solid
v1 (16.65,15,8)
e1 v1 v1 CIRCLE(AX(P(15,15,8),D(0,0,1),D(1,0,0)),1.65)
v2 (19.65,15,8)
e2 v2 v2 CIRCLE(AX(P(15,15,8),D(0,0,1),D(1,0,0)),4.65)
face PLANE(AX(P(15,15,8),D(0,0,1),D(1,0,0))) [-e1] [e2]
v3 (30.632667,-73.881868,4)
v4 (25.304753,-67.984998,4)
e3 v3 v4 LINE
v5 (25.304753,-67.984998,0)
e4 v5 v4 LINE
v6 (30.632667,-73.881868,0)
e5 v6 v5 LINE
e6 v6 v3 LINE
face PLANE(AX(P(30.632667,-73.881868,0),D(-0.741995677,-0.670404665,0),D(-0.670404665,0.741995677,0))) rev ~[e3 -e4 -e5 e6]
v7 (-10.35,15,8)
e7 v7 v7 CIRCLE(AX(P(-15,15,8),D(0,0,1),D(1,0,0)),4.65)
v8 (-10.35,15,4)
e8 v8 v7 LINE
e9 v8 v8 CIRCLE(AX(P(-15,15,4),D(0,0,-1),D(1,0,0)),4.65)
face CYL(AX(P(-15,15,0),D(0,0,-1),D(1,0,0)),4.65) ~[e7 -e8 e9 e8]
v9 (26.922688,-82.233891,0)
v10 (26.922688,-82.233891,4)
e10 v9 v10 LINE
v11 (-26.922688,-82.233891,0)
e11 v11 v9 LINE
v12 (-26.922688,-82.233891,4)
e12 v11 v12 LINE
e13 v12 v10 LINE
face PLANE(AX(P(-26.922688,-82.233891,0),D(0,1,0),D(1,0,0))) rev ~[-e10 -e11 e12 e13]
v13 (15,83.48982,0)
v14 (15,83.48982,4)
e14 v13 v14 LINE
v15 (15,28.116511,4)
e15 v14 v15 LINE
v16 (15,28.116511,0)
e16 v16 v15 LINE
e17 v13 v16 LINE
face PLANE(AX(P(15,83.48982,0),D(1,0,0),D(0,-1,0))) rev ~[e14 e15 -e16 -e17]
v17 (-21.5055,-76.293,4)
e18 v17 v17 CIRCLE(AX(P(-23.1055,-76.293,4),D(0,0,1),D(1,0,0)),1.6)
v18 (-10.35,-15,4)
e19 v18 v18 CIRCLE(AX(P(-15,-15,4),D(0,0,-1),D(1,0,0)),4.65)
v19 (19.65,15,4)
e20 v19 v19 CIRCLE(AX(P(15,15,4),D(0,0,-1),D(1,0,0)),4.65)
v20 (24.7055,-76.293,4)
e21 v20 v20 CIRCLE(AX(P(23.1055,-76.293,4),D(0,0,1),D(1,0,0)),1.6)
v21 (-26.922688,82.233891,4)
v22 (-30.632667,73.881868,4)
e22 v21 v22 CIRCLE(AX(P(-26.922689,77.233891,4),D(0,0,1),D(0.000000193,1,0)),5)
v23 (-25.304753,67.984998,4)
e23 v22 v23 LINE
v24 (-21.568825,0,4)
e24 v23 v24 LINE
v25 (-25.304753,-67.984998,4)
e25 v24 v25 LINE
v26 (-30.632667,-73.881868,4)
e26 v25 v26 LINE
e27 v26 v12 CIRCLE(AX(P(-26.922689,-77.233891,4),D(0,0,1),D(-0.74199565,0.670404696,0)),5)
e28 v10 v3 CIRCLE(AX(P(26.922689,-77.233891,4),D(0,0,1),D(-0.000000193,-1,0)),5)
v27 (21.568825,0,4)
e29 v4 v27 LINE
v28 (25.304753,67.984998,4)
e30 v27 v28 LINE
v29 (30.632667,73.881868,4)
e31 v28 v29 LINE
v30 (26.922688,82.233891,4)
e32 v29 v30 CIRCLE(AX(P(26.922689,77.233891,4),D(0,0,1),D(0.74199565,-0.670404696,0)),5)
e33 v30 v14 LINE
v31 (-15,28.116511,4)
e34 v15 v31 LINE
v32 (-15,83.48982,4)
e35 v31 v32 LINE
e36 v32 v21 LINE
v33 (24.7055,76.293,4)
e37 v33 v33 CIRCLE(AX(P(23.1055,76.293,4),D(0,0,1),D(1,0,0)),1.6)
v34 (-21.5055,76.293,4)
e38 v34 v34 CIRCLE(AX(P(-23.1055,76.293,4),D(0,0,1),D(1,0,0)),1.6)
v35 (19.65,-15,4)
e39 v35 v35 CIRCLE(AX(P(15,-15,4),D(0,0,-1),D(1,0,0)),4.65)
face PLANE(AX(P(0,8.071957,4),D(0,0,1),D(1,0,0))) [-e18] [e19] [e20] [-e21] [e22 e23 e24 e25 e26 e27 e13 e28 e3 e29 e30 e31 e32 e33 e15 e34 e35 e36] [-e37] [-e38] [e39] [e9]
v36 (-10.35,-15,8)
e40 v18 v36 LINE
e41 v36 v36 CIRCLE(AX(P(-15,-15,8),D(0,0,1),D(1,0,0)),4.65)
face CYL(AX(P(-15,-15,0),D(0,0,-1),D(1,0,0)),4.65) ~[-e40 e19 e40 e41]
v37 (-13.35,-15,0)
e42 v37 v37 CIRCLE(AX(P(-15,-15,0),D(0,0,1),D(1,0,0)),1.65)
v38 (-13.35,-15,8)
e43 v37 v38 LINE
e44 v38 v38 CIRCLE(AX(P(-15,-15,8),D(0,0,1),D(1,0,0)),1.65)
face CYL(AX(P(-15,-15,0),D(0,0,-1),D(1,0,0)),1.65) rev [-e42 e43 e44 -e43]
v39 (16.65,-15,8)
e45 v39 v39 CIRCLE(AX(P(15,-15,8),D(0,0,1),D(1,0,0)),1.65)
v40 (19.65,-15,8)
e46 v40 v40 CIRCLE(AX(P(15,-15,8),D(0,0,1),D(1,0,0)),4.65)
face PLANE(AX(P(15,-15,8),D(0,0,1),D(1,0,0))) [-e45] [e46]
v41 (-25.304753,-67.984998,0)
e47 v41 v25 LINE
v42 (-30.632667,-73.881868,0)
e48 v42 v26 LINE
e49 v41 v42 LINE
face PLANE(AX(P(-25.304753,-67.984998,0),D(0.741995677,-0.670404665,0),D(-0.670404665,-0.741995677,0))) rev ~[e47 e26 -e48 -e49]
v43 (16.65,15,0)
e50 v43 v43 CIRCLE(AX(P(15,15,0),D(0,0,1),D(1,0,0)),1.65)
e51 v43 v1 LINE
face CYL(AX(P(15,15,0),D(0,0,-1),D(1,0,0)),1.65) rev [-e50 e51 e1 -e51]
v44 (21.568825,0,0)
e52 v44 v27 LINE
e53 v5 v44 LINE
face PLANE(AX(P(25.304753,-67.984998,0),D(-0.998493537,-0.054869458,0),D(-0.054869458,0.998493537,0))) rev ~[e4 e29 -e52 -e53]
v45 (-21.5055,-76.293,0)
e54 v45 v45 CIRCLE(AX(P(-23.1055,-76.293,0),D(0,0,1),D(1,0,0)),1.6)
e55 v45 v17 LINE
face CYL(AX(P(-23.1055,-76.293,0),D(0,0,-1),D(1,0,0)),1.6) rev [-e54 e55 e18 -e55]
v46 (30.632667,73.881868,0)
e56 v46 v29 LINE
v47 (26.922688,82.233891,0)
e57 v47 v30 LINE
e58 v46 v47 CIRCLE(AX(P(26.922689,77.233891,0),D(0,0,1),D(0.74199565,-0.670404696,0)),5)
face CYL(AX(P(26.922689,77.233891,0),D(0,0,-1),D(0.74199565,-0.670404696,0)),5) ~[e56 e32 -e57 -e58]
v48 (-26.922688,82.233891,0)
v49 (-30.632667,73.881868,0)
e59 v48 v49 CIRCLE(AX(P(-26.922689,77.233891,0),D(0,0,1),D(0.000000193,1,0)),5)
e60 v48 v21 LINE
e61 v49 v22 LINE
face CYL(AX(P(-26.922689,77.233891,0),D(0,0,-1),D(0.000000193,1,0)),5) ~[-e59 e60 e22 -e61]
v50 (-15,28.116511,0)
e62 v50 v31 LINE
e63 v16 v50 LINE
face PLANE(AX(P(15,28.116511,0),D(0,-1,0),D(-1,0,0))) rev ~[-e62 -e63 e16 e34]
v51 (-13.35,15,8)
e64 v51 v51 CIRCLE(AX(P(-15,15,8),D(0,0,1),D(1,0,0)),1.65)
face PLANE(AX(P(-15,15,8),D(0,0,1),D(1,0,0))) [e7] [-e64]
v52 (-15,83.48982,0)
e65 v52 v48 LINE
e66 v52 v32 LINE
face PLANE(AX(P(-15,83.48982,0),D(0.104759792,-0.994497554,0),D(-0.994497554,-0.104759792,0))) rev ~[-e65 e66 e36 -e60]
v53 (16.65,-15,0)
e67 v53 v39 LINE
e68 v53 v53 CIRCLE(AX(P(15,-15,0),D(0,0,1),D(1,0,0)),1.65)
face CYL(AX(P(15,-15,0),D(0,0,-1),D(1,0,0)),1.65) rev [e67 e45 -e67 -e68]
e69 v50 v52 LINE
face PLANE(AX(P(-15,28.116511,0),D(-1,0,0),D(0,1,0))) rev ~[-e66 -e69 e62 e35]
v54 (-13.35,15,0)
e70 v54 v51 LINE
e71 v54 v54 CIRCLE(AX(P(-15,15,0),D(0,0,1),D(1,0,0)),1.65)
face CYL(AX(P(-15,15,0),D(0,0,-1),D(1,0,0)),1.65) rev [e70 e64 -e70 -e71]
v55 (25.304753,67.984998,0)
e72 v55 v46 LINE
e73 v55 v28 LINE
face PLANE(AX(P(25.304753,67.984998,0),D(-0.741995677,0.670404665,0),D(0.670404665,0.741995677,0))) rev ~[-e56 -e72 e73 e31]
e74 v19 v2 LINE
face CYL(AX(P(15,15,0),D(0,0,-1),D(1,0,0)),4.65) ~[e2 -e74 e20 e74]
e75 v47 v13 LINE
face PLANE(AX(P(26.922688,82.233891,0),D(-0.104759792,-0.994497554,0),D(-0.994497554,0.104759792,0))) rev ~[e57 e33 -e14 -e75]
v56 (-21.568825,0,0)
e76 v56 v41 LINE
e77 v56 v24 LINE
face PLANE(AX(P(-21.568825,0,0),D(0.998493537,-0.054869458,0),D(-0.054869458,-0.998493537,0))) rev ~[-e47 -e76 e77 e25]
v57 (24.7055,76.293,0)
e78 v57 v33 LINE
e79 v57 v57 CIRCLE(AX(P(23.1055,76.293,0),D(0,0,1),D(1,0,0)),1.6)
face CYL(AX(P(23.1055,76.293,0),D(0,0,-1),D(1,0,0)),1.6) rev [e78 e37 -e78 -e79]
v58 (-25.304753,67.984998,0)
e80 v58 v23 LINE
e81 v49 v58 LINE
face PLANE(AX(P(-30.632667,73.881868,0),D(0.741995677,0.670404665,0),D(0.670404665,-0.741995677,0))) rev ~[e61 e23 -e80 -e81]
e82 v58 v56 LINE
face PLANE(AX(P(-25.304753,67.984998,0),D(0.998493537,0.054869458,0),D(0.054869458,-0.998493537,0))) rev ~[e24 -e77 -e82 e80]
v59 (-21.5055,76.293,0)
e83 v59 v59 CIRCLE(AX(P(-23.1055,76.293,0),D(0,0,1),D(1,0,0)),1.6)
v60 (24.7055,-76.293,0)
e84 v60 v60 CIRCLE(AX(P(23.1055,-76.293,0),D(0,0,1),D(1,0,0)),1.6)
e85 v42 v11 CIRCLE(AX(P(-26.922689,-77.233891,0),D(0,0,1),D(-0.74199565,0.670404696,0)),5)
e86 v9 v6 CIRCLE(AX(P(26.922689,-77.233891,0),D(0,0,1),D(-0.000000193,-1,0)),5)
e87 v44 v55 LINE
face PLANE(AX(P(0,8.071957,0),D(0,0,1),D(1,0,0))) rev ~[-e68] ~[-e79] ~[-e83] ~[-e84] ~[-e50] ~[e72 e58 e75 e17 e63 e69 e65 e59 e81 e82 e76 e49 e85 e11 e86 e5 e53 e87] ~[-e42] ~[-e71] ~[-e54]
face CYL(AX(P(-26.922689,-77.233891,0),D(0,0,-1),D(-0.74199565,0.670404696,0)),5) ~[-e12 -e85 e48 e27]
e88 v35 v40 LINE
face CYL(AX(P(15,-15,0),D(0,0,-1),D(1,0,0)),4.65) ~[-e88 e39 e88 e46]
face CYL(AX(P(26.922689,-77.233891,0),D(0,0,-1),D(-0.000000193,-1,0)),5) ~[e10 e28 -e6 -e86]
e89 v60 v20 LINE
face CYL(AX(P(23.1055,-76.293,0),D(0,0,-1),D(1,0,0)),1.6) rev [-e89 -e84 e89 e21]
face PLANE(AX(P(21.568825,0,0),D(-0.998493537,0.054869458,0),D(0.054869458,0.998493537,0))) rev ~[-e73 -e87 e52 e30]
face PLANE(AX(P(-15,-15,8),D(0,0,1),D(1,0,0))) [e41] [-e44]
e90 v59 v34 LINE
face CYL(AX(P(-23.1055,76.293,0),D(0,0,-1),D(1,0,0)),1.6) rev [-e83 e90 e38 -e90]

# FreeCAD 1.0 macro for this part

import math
import FreeCAD as App
import Part
import Sketcher

doc = App.newDocument("Part")
params = doc.addObject("Spreadsheet::Sheet", "Params")
for row, (alias, value) in enumerate([
    ("sketch1_radius", "5 mm"),
    ("sketch1_diameter", "3.2 mm"),
    ("sketch1_diameter2", "3.3 mm"),
    ("sketch1_width", "30 mm"),
    ("pad1_length", "4 mm"),
    ("sketch2_diameter", "9.3 mm"),
    ("sketch2_diameter2", "3.3 mm"),
    ("pad2_length", "8 mm"),
], start=1):
    params.set(f"A{row}", alias)
    params.set(f"B{row}", "=" + value)
    params.setAlias(f"B{row}", alias)

body = doc.addObject("PartDesign::Body", "Body")

# Sketch on XY plane
sketch1 = body.newObject("Sketcher::SketchObject", "Sketch")
sketch1.AttachmentSupport = (doc.getObject("XY_Plane"), [""])
sketch1.MapMode = "FlatFace"
sketch1.addGeometry([
    Part.LineSegment(App.Vector(-25.3, 68, 0), App.Vector(-21.6, 0, 0)),  # 0
    Part.LineSegment(App.Vector(-21.6, 0, 0), App.Vector(-25.3, -68, 0)),  # 1
    Part.LineSegment(App.Vector(-25.3, -68, 0), App.Vector(-30.6, -73.9, 0)),  # 2
    Part.ArcOfCircle(Part.Circle(App.Vector(-26.9, -77.2, 0), App.Vector(0, 0, 1), 5), math.radians(138), math.radians(270)),  # 3
    Part.LineSegment(App.Vector(-26.9, -82.2, 0), App.Vector(26.9, -82.2, 0)),  # 4
    Part.ArcOfCircle(Part.Circle(App.Vector(26.9, -77.2, 0), App.Vector(0, 0, 1), 5), math.radians(-90), math.radians(42)),  # 5
    Part.LineSegment(App.Vector(30.6, -73.9, 0), App.Vector(25.3, -68, 0)),  # 6
    Part.LineSegment(App.Vector(25.3, -68, 0), App.Vector(21.6, 0, 0)),  # 7
    Part.LineSegment(App.Vector(21.6, 0, 0), App.Vector(25.3, 68, 0)),  # 8
    Part.LineSegment(App.Vector(25.3, 68, 0), App.Vector(30.6, 73.9, 0)),  # 9
    Part.ArcOfCircle(Part.Circle(App.Vector(26.9, 77.2, 0), App.Vector(0, 0, 1), 5), math.radians(-42), math.radians(90)),  # 10
    Part.LineSegment(App.Vector(26.9, 82.2, 0), App.Vector(15, 83.5, 0)),  # 11
    Part.LineSegment(App.Vector(15, 83.5, 0), App.Vector(15, 28.1, 0)),  # 12
    Part.LineSegment(App.Vector(15, 28.1, 0), App.Vector(-15, 28.1, 0)),  # 13
    Part.LineSegment(App.Vector(-15, 28.1, 0), App.Vector(-15, 83.5, 0)),  # 14
    Part.LineSegment(App.Vector(-15, 83.5, 0), App.Vector(-26.9, 82.2, 0)),  # 15
    Part.ArcOfCircle(Part.Circle(App.Vector(-26.9, 77.2, 0), App.Vector(0, 0, 1), 5), math.radians(90), math.radians(222)),  # 16
    Part.LineSegment(App.Vector(-30.6, 73.9, 0), App.Vector(-25.3, 68, 0)),  # 17
    Part.Circle(App.Vector(-23.1, -76.3, 0), App.Vector(0, 0, 1), 1.6),  # 18
    Part.Circle(App.Vector(-15, -15, 0), App.Vector(0, 0, 1), 1.6),  # 19
    Part.Circle(App.Vector(23.1, -76.3, 0), App.Vector(0, 0, 1), 1.6),  # 20
    Part.Circle(App.Vector(15, -15, 0), App.Vector(0, 0, 1), 1.6),  # 21
    Part.Circle(App.Vector(-15, 15, 0), App.Vector(0, 0, 1), 1.6),  # 22
    Part.Circle(App.Vector(-23.1, 76.3, 0), App.Vector(0, 0, 1), 1.6),  # 23
    Part.Circle(App.Vector(15, 15, 0), App.Vector(0, 0, 1), 1.6),  # 24
    Part.Circle(App.Vector(23.1, 76.3, 0), App.Vector(0, 0, 1), 1.6),  # 25
], False)
sketch1.addConstraint([
    Sketcher.Constraint("Coincident", 0, 2, 1, 1),
    Sketcher.Constraint("Coincident", 1, 2, 2, 1),
    Sketcher.Constraint("Tangent", 2, 2, 3, 1),
    Sketcher.Constraint("Tangent", 3, 2, 4, 1),
    Sketcher.Constraint("Tangent", 4, 2, 5, 1),
    Sketcher.Constraint("Tangent", 5, 2, 6, 1),
    Sketcher.Constraint("Coincident", 6, 2, 7, 1),
    Sketcher.Constraint("Coincident", 7, 2, 8, 1),
    Sketcher.Constraint("Coincident", 8, 2, 9, 1),
    Sketcher.Constraint("Tangent", 9, 2, 10, 1),
    Sketcher.Constraint("Coincident", 10, 2, 11, 1),
    Sketcher.Constraint("Coincident", 11, 2, 12, 1),
    Sketcher.Constraint("Coincident", 12, 2, 13, 1),
    Sketcher.Constraint("Coincident", 13, 2, 14, 1),
    Sketcher.Constraint("Coincident", 14, 2, 15, 1),
    Sketcher.Constraint("Coincident", 15, 2, 16, 1),
    Sketcher.Constraint("Tangent", 16, 2, 17, 1),
    Sketcher.Constraint("Coincident", 17, 2, 0, 1),
    Sketcher.Constraint("Horizontal", 4),
    Sketcher.Constraint("Vertical", 12),
    Sketcher.Constraint("Horizontal", 13),
    Sketcher.Constraint("Vertical", 14),
    Sketcher.Constraint("Equal", 3, 5),
    Sketcher.Constraint("Equal", 5, 10),
    Sketcher.Constraint("Equal", 10, 16),
    Sketcher.Constraint("Equal", 18, 20),
    Sketcher.Constraint("Equal", 19, 21),
    Sketcher.Constraint("Equal", 21, 22),
    Sketcher.Constraint("Equal", 20, 23),
    Sketcher.Constraint("Equal", 22, 24),
    Sketcher.Constraint("Equal", 23, 25),
    Sketcher.Constraint("Symmetric", 3, 3, 10, 3, -1, 1),
    Sketcher.Constraint("Symmetric", 5, 3, 16, 3, -1, 1),
    Sketcher.Constraint("Symmetric", 21, 3, 22, 3, -1, 1),
    Sketcher.Constraint("Symmetric", 20, 3, 23, 3, -1, 1),
    Sketcher.Constraint("Symmetric", 19, 3, 24, 3, -1, 1),
    Sketcher.Constraint("Symmetric", 18, 3, 25, 3, -1, 1),
    Sketcher.Constraint("Symmetric", 0, 2, 7, 2, -1, 1),
    Sketcher.Constraint("Symmetric", 1, 2, 8, 2, -1, 1),
    Sketcher.Constraint("Symmetric", 6, 2, 17, 2, -1, 1),
    Sketcher.Constraint("Symmetric", 18, 3, 20, 3, -2),
    Sketcher.Constraint("Symmetric", 19, 3, 21, 3, -2),
    Sketcher.Constraint("Symmetric", 2, 2, 5, 2, -2),
    Sketcher.Constraint("Symmetric", 11, 2, 14, 2, -2),
    Sketcher.Constraint("PointOnObject", 0, 2, -1),
    Sketcher.Constraint("Horizontal", 1, 2, 6, 2),
    Sketcher.Constraint("Vertical", 4, 2, 10, 2),
    Sketcher.Constraint("Vertical", 24, 3, 11, 2),
    Sketcher.Constraint("Vertical", 3, 2, 15, 2),
    Sketcher.Constraint("Radius", 3, 5.0),
    Sketcher.Constraint("Diameter", 18, 3.2),
    Sketcher.Constraint("Diameter", 19, 3.3),
    Sketcher.Constraint("DistanceX", 13, 2, 13, 1, 30.0),
    Sketcher.Constraint("DistanceY", 19, 3, -1, 1, 15.0),
    Sketcher.Constraint("DistanceY", 18, 3, -1, 1, 76.293),
    Sketcher.Constraint("DistanceY", 1, 2, -1, 1, 67.984998),
    Sketcher.Constraint("DistanceX", 18, 3, 20, 3, 46.211),
    Sketcher.Constraint("DistanceY", 12, 2, 12, 1, 55.373309),
    Sketcher.Constraint("Distance", 0, 68.087569),
    Sketcher.Constraint("Distance", 2, 7.94731),
    Sketcher.Constraint("DistanceX", 4, 1, 4, 2, 53.845376),
    Sketcher.Constraint("DistanceY", 3, 3, -1, 1, 77.233891),
    Sketcher.Constraint("DistanceY", -1, 1, 11, 2, 83.48982),
])
sketch1.setExpression("Constraints[49]", "Params.sketch1_radius")
sketch1.setExpression("Constraints[50]", "Params.sketch1_diameter")
sketch1.setExpression("Constraints[51]", "Params.sketch1_diameter2")
sketch1.setExpression("Constraints[52]", "Params.sketch1_width")
pad1 = body.newObject("PartDesign::Pad", "Pad")
pad1.Profile = sketch1
pad1.setExpression("Length", "Params.pad1_length")

# Sketch on XY plane
sketch2 = body.newObject("Sketcher::SketchObject", "Sketch001")
sketch2.AttachmentSupport = (doc.getObject("XY_Plane"), [""])
sketch2.MapMode = "FlatFace"
sketch2.addGeometry([
    Part.Circle(App.Vector(-15, 15, 0), App.Vector(0, 0, 1), 4.7),  # 0
    Part.Circle(App.Vector(-15, 15, 0), App.Vector(0, 0, 1), 1.6),  # 1
    Part.Circle(App.Vector(-15, -15, 0), App.Vector(0, 0, 1), 4.7),  # 2
    Part.Circle(App.Vector(-15, -15, 0), App.Vector(0, 0, 1), 1.6),  # 3
    Part.Circle(App.Vector(15, 15, 0), App.Vector(0, 0, 1), 4.7),  # 4
    Part.Circle(App.Vector(15, 15, 0), App.Vector(0, 0, 1), 1.6),  # 5
    Part.Circle(App.Vector(15, -15, 0), App.Vector(0, 0, 1), 4.7),  # 6
    Part.Circle(App.Vector(15, -15, 0), App.Vector(0, 0, 1), 1.6),  # 7
], False)
sketch2.addConstraint([
    Sketcher.Constraint("Coincident", 1, 3, 0, 3),
    Sketcher.Constraint("Coincident", 3, 3, 2, 3),
    Sketcher.Constraint("Coincident", 5, 3, 4, 3),
    Sketcher.Constraint("Coincident", 7, 3, 6, 3),
    Sketcher.Constraint("Equal", 0, 2),
    Sketcher.Constraint("Equal", 1, 3),
    Sketcher.Constraint("Equal", 2, 4),
    Sketcher.Constraint("Equal", 3, 5),
    Sketcher.Constraint("Equal", 4, 6),
    Sketcher.Constraint("Equal", 5, 7),
    Sketcher.Constraint("Symmetric", 2, 3, 4, 3, -1, 1),
    Sketcher.Constraint("Symmetric", 0, 3, 6, 3, -1, 1),
    Sketcher.Constraint("Symmetric", 0, 3, 4, 3, -2),
    Sketcher.Constraint("Diameter", 0, 9.3),
    Sketcher.Constraint("Diameter", 1, 3.3),
    Sketcher.Constraint("DistanceX", 0, 3, -1, 1, 15.0),
    Sketcher.Constraint("DistanceY", -1, 1, 0, 3, 15.0),
])
sketch2.setExpression("Constraints[13]", "Params.sketch2_diameter")
sketch2.setExpression("Constraints[14]", "Params.sketch2_diameter2")
pad2 = body.newObject("PartDesign::Pad", "Pad001")
pad2.Profile = sketch2
pad2.setExpression("Length", "Params.pad2_length")

doc.recompute()
